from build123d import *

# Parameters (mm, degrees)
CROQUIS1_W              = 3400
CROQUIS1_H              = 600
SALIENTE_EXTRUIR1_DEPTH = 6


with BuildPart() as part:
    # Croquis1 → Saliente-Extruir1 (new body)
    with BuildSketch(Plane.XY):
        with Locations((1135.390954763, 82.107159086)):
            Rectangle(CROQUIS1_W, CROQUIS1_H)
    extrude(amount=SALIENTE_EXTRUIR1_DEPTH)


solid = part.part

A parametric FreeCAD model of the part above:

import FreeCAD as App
import Part
import Sketcher
Q = App.Units.Quantity


def add_polygon(sketch, points):
    """Adds a closed chain of lines whose ends are joined by coincident constraints."""
    first, n = sketch.GeometryCount, len(points)
    for a, b in zip(points, points[1:] + points[:1]):
        sketch.addGeometry(Part.LineSegment(App.Vector(*a, 0), App.Vector(*b, 0)), False)
    for i in range(n):
        sketch.addConstraint(Sketcher.Constraint("Coincident", first + i, 2, first + (i + 1) % n, 1))

doc = App.newDocument("Part")
body = doc.addObject("PartDesign::Body", "Body")

# Sketch on XY plane
sketch1 = body.newObject("Sketcher::SketchObject", "Sketch")
sketch1.AttachmentSupport = (doc.getObject("XY_Plane"), [""])
sketch1.MapMode = "FlatFace"
add_polygon(sketch1, [(-565, 382), (-565, -218), (2835, -218), (2835, 382)])  # lines 0-3
sketch1.addConstraint([
    Sketcher.Constraint("Vertical", 0),
    Sketcher.Constraint("Horizontal", 1),
    Sketcher.Constraint("Vertical", 2),
    Sketcher.Constraint("Horizontal", 3),
    Sketcher.Constraint("DistanceX", 1, 1, 1, 2, Q("3400 mm")),
    Sketcher.Constraint("DistanceY", 0, 2, 0, 1, Q("600 mm")),
    Sketcher.Constraint("DistanceY", 0, 2, -1, 1, Q("217.892841 mm")),
    Sketcher.Constraint("DistanceX", 0, 2, -1, 1, Q("564.609045 mm")),
])
pad1 = body.newObject("PartDesign::Pad", "Pad")
pad1.Profile = sketch1
pad1.Length = 6

doc.recompute()
